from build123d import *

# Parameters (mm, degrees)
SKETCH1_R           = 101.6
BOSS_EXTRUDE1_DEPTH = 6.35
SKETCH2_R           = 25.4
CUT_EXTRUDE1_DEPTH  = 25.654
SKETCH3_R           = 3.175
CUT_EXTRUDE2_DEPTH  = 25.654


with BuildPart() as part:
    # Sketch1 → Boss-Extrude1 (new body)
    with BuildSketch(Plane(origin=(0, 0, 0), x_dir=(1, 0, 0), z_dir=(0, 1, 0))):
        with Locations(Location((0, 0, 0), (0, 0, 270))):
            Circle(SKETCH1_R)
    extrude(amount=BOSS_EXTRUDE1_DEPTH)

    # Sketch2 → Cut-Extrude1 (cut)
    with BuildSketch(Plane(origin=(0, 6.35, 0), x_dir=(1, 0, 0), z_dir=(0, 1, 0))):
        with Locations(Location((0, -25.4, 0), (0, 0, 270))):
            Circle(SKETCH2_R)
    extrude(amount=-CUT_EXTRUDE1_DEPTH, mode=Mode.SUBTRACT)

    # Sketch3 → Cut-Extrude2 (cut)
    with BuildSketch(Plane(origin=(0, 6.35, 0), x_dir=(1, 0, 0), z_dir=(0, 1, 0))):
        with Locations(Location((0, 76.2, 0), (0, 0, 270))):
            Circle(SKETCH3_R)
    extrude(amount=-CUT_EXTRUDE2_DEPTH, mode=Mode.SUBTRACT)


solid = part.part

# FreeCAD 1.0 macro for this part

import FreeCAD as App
import Part
import Sketcher
from FreeCAD import Vector
Q = App.Units.Quantity

doc = App.newDocument("Part")
params = doc.addObject("Spreadsheet::Sheet", "Params")
for row, (alias, value) in enumerate([
    ("sketch1_diameter", "8 in"),
    ("pad1_length", "0.25 in"),
    ("sketch2_diameter", "2 in"),
    ("pocket1_length", "1.01 in"),
    ("sketch3_diameter", "0.25 in"),
    ("pocket2_length", "1.01 in"),
], start=1):
    params.set(f"A{row}", alias)
    params.set(f"B{row}", "=" + value)
    params.setAlias(f"B{row}", alias)

body = doc.addObject("PartDesign::Body", "Body")

# Sketch on XZ plane
sketch1 = body.newObject("Sketcher::SketchObject", "Sketch")
sketch1.AttachmentSupport = (doc.getObject("XZ_Plane"), [""])
sketch1.MapMode = "FlatFace"
sketch1.addGeometry(Part.Circle(Vector(0, 0, 0), Vector(0, 0, 1), 102), False)
sketch1.addConstraint([
    Sketcher.Constraint("Coincident", 0, 3, -1, 1),
    Sketcher.Constraint("Diameter", 0, Q("8 in")),
])
sketch1.setExpression("Constraints[1]", "Params.sketch1_diameter")
pad1 = body.newObject("PartDesign::Pad", "Pad")
pad1.Profile = sketch1
pad1.setExpression("Length", "Params.pad1_length")
pad1.Reversed = True

# Sketch on XZ plane
sketch2 = body.newObject("Sketcher::SketchObject", "Sketch001")
sketch2.AttachmentSupport = (doc.getObject("XZ_Plane"), [""])
sketch2.MapMode = "FlatFace"
sketch2.AttachmentOffset = App.Placement(Vector(0, 0, -0.25 * 25.4), App.Rotation())
sketch2.addGeometry(Part.Circle(Vector(0, 25, 0), Vector(0, 0, 1), 25), False)
sketch2.addConstraint([
    Sketcher.Constraint("PointOnObject", 0, 3, -2),
    Sketcher.Constraint("Diameter", 0, Q("2 in")),
    Sketcher.Constraint("DistanceY", -1, 1, 0, 3, Q("1 in")),
])
sketch2.setExpression("Constraints[1]", "Params.sketch2_diameter")
pocket1 = body.newObject("PartDesign::Pocket", "Pocket")
pocket1.Profile = sketch2
pocket1.setExpression("Length", "Params.pocket1_length")
pocket1.Reversed = True

# Sketch on XZ plane
sketch3 = body.newObject("Sketcher::SketchObject", "Sketch002")
sketch3.AttachmentSupport = (doc.getObject("XZ_Plane"), [""])
sketch3.MapMode = "FlatFace"
sketch3.AttachmentOffset = App.Placement(Vector(0, 0, -0.25 * 25.4), App.Rotation())
sketch3.addGeometry(Part.Circle(Vector(0, -76.2, 0), Vector(0, 0, 1), 3.2), False)
sketch3.addConstraint([
    Sketcher.Constraint("PointOnObject", 0, 3, -2),
    Sketcher.Constraint("Diameter", 0, Q("0.25 in")),
    Sketcher.Constraint("DistanceY", 0, 3, -1, 1, Q("3 in")),
])
sketch3.setExpression("Constraints[1]", "Params.sketch3_diameter")
pocket2 = body.newObject("PartDesign::Pocket", "Pocket001")
pocket2.Profile = sketch3
pocket2.setExpression("Length", "Params.pocket2_length")
pocket2.Reversed = True

doc.recompute()
